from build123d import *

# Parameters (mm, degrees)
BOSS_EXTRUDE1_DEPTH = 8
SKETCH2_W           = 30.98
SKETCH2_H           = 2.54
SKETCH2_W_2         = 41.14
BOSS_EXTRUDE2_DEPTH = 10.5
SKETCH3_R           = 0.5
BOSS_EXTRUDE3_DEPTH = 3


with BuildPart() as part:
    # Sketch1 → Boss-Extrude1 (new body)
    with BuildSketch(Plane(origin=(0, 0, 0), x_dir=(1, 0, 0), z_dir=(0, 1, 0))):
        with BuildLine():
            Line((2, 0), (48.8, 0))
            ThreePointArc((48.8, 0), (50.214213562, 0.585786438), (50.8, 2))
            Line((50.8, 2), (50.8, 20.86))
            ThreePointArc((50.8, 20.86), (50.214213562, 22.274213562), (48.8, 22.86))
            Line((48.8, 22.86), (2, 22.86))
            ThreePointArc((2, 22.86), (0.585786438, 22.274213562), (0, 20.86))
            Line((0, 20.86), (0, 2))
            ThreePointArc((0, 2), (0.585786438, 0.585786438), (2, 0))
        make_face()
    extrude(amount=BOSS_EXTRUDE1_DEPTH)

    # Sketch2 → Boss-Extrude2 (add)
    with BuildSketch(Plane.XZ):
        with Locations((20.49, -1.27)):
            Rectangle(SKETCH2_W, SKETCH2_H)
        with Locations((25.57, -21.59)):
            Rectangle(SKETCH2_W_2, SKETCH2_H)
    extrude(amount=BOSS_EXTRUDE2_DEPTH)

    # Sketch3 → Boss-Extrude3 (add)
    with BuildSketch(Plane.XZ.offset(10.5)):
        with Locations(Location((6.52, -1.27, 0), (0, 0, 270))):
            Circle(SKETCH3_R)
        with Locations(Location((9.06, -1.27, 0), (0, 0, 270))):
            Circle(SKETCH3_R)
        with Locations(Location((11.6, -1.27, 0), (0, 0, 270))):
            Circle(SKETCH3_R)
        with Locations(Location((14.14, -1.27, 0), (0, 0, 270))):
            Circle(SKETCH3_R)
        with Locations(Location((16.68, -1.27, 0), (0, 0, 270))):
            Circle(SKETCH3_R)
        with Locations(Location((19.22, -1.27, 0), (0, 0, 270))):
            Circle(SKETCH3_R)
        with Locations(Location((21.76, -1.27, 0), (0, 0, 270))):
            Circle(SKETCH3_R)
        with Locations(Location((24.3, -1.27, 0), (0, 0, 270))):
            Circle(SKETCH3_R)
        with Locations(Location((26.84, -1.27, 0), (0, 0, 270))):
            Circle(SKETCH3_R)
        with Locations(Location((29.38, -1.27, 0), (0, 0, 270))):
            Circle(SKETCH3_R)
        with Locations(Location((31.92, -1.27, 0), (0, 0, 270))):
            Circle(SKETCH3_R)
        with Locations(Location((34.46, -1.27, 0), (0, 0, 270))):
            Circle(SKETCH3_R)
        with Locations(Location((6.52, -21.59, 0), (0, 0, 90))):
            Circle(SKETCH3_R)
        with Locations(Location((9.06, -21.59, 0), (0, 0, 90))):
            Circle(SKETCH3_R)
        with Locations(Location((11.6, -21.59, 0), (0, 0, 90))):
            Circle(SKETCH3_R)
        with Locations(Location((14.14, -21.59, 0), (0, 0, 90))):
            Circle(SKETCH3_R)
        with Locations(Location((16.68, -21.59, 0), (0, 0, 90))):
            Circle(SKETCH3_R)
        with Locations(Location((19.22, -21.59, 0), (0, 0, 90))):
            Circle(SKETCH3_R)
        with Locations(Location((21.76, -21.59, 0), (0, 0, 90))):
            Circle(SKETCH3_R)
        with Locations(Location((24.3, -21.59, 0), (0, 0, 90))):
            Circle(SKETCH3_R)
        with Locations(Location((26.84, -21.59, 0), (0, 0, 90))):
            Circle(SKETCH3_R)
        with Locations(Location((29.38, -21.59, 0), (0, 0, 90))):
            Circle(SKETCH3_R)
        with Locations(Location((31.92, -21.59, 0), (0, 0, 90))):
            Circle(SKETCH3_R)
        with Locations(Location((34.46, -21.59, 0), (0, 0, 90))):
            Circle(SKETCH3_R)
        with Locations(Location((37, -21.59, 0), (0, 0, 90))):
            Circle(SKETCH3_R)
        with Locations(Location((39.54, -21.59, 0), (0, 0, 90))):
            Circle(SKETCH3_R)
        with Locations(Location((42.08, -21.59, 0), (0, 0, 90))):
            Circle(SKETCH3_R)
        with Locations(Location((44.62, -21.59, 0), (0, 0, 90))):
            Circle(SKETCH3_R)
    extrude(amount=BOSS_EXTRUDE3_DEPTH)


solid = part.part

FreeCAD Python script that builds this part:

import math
import FreeCAD as App
import Part
import Sketcher

V = App.Vector

doc = App.newDocument("Part")
body = doc.addObject("PartDesign::Body", "Body")

sketch1 = body.newObject("Sketcher::SketchObject", "Sketch")
sketch1.AttachmentSupport = (doc.getObject("XZ_Plane"), [""])
sketch1.MapMode = "FlatFace"
sketch1.addGeometry([
    Part.LineSegment(V(2, 0, 0), V(48.8, 0, 0)),
    Part.ArcOfCircle(Part.Circle(V(48.8, -2, 0), V(0, 0, 1), 2), math.radians(0), math.radians(90)),
    Part.LineSegment(V(50.8, -2, 0), V(50.8, -20.9, 0)),
    Part.ArcOfCircle(Part.Circle(V(48.8, -20.9, 0), V(0, 0, 1), 2), math.radians(-90), math.radians(0)),
    Part.LineSegment(V(48.8, -22.9, 0), V(2, -22.9, 0)),
    Part.ArcOfCircle(Part.Circle(V(2, -20.9, 0), V(0, 0, 1), 2), math.radians(-180), math.radians(-90)),
    Part.LineSegment(V(0, -20.9, 0), V(0, -2, 0)),
    Part.ArcOfCircle(Part.Circle(V(2, -2, 0), V(0, 0, 1), 2), math.radians(90), math.radians(180)),
], False)
sketch1.addConstraint([
    Sketcher.Constraint("Tangent", 0, 2, 1, 2),
    Sketcher.Constraint("Tangent", 1, 1, 2, 1),
    Sketcher.Constraint("Tangent", 2, 2, 3, 2),
    Sketcher.Constraint("Tangent", 3, 1, 4, 1),
    Sketcher.Constraint("Tangent", 4, 2, 5, 2),
    Sketcher.Constraint("Tangent", 5, 1, 6, 1),
    Sketcher.Constraint("Tangent", 6, 2, 7, 2),
    Sketcher.Constraint("Tangent", 7, 1, 0, 1),
    Sketcher.Constraint("Horizontal", 0),
    Sketcher.Constraint("Vertical", 2),
    Sketcher.Constraint("Horizontal", 4),
    Sketcher.Constraint("Vertical", 6),
    Sketcher.Constraint("Equal", 1, 3),
    Sketcher.Constraint("Equal", 3, 5),
    Sketcher.Constraint("Equal", 5, 7),
    Sketcher.Constraint("PointOnObject", 0, 2, -1),
    Sketcher.Constraint("PointOnObject", 5, 1, -2),
    Sketcher.Constraint("Radius", 1, 2.0),
    Sketcher.Constraint("DistanceX", 0, 1, 0, 2, 46.8),
    Sketcher.Constraint("DistanceY", 2, 2, 2, 1, 18.86),
])
pad1 = body.newObject("PartDesign::Pad", "Pad")
pad1.Profile = sketch1
pad1.Length = 8
pad1.Reversed = True

sketch2 = body.newObject("Sketcher::SketchObject", "Sketch001")
sketch2.AttachmentSupport = (doc.getObject("XZ_Plane"), [""])
sketch2.MapMode = "FlatFace"
sketch2.addGeometry([
    Part.LineSegment(V(5, 0, 0), V(5, -2.5, 0)),
    Part.LineSegment(V(5, -2.5, 0), V(36, -2.5, 0)),
    Part.LineSegment(V(36, -2.5, 0), V(36, 0, 0)),
    Part.LineSegment(V(36, 0, 0), V(5, 0, 0)),
    Part.LineSegment(V(5, -20.3, 0), V(5, -22.9, 0)),
    Part.LineSegment(V(5, -22.9, 0), V(46.1, -22.9, 0)),
    Part.LineSegment(V(46.1, -22.9, 0), V(46.1, -20.3, 0)),
    Part.LineSegment(V(46.1, -20.3, 0), V(5, -20.3, 0)),
], False)
sketch2.addConstraint([
    Sketcher.Constraint("Coincident", 0, 2, 1, 1),
    Sketcher.Constraint("Coincident", 1, 2, 2, 1),
    Sketcher.Constraint("Coincident", 2, 2, 3, 1),
    Sketcher.Constraint("Coincident", 3, 2, 0, 1),
    Sketcher.Constraint("Coincident", 4, 2, 5, 1),
    Sketcher.Constraint("Coincident", 5, 2, 6, 1),
    Sketcher.Constraint("Coincident", 6, 2, 7, 1),
    Sketcher.Constraint("Coincident", 7, 2, 4, 1),
    Sketcher.Constraint("Vertical", 0),
    Sketcher.Constraint("Horizontal", 1),
    Sketcher.Constraint("Vertical", 2),
    Sketcher.Constraint("Horizontal", 3),
    Sketcher.Constraint("Vertical", 4),
    Sketcher.Constraint("Horizontal", 5),
    Sketcher.Constraint("Vertical", 6),
    Sketcher.Constraint("Horizontal", 7),
    Sketcher.Constraint("PointOnObject", 2, 2, -1),
    Sketcher.Constraint("Vertical", 3, 2, 4, 2),
    Sketcher.Constraint("Equal", 2, 4),
    Sketcher.Constraint("DistanceX", -1, 1, 0, 2, 5.0),
    Sketcher.Constraint("DistanceX", 1, 1, 1, 2, 30.98),
    Sketcher.Constraint("DistanceX", 5, 1, 5, 2, 41.14),
    Sketcher.Constraint("DistanceY", 0, 2, 0, 1, 2.54),
    Sketcher.Constraint("DistanceY", 4, 2, -1, 1, 22.86),
])
pad2 = body.newObject("PartDesign::Pad", "Pad001")
pad2.Profile = sketch2
pad2.Length = 10.5

sketch3 = body.newObject("Sketcher::SketchObject", "Sketch002")
sketch3.AttachmentSupport = (doc.getObject("XZ_Plane"), [""])
sketch3.MapMode = "FlatFace"
sketch3.AttachmentOffset = App.Placement(V(0, 0, 10.5), App.Rotation())
sketch3.addGeometry([
    Part.Circle(V(6.5, -1.3, 0), V(0, 0, 1), 0.5),
    Part.Circle(V(9.1, -1.3, 0), V(0, 0, 1), 0.5),
    Part.Circle(V(11.6, -1.3, 0), V(0, 0, 1), 0.5),
    Part.Circle(V(14.1, -1.3, 0), V(0, 0, 1), 0.5),
    Part.Circle(V(16.7, -1.3, 0), V(0, 0, 1), 0.5),
    Part.Circle(V(19.2, -1.3, 0), V(0, 0, 1), 0.5),
    Part.Circle(V(21.8, -1.3, 0), V(0, 0, 1), 0.5),
    Part.Circle(V(24.3, -1.3, 0), V(0, 0, 1), 0.5),
    Part.Circle(V(26.8, -1.3, 0), V(0, 0, 1), 0.5),
    Part.Circle(V(29.4, -1.3, 0), V(0, 0, 1), 0.5),
    Part.Circle(V(31.9, -1.3, 0), V(0, 0, 1), 0.5),
    Part.Circle(V(34.5, -1.3, 0), V(0, 0, 1), 0.5),
    Part.Circle(V(6.5, -21.6, 0), V(0, 0, 1), 0.5),
    Part.Circle(V(9.1, -21.6, 0), V(0, 0, 1), 0.5),
    Part.Circle(V(11.6, -21.6, 0), V(0, 0, 1), 0.5),
    Part.Circle(V(14.1, -21.6, 0), V(0, 0, 1), 0.5),
    Part.Circle(V(16.7, -21.6, 0), V(0, 0, 1), 0.5),
    Part.Circle(V(19.2, -21.6, 0), V(0, 0, 1), 0.5),
    Part.Circle(V(21.8, -21.6, 0), V(0, 0, 1), 0.5),
    Part.Circle(V(24.3, -21.6, 0), V(0, 0, 1), 0.5),
    Part.Circle(V(26.8, -21.6, 0), V(0, 0, 1), 0.5),
    Part.Circle(V(29.4, -21.6, 0), V(0, 0, 1), 0.5),
    Part.Circle(V(31.9, -21.6, 0), V(0, 0, 1), 0.5),
    Part.Circle(V(34.5, -21.6, 0), V(0, 0, 1), 0.5),
    Part.Circle(V(37, -21.6, 0), V(0, 0, 1), 0.5),
    Part.Circle(V(39.5, -21.6, 0), V(0, 0, 1), 0.5),
    Part.Circle(V(42.1, -21.6, 0), V(0, 0, 1), 0.5),
    Part.Circle(V(44.6, -21.6, 0), V(0, 0, 1), 0.5),
], False)
sketch3.addConstraint([
    Sketcher.Constraint("Equal", 0, 1),
    Sketcher.Constraint("Equal", 1, 2),
    Sketcher.Constraint("Equal", 2, 3),
    Sketcher.Constraint("Equal", 3, 4),
    Sketcher.Constraint("Equal", 4, 5),
    Sketcher.Constraint("Equal", 5, 6),
    Sketcher.Constraint("Equal", 6, 7),
    Sketcher.Constraint("Equal", 7, 8),
    Sketcher.Constraint("Equal", 8, 9),
    Sketcher.Constraint("Equal", 9, 10),
    Sketcher.Constraint("Equal", 10, 11),
    Sketcher.Constraint("Equal", 11, 12),
    Sketcher.Constraint("Equal", 12, 13),
    Sketcher.Constraint("Equal", 13, 14),
    Sketcher.Constraint("Equal", 14, 15),
    Sketcher.Constraint("Equal", 15, 16),
    Sketcher.Constraint("Equal", 16, 17),
    Sketcher.Constraint("Equal", 17, 18),
    Sketcher.Constraint("Equal", 18, 19),
    Sketcher.Constraint("Equal", 19, 20),
    Sketcher.Constraint("Equal", 20, 21),
    Sketcher.Constraint("Equal", 21, 22),
    Sketcher.Constraint("Equal", 22, 23),
    Sketcher.Constraint("Equal", 23, 24),
    Sketcher.Constraint("Equal", 24, 25),
    Sketcher.Constraint("Equal", 25, 26),
    Sketcher.Constraint("Equal", 26, 27),
    Sketcher.Constraint("Horizontal", 0, 3, 1, 3),
    Sketcher.Constraint("Horizontal", 1, 3, 2, 3),
    Sketcher.Constraint("Horizontal", 2, 3, 3, 3),
    Sketcher.Constraint("Horizontal", 3, 3, 4, 3),
    Sketcher.Constraint("Horizontal", 4, 3, 5, 3),
    Sketcher.Constraint("Horizontal", 5, 3, 6, 3),
    Sketcher.Constraint("Horizontal", 6, 3, 7, 3),
    Sketcher.Constraint("Horizontal", 7, 3, 8, 3),
    Sketcher.Constraint("Horizontal", 8, 3, 9, 3),
    Sketcher.Constraint("Horizontal", 9, 3, 10, 3),
    Sketcher.Constraint("Horizontal", 10, 3, 11, 3),
    Sketcher.Constraint("Horizontal", 12, 3, 13, 3),
    Sketcher.Constraint("Horizontal", 13, 3, 14, 3),
    Sketcher.Constraint("Horizontal", 14, 3, 15, 3),
    Sketcher.Constraint("Horizontal", 15, 3, 16, 3),
    Sketcher.Constraint("Horizontal", 16, 3, 17, 3),
    Sketcher.Constraint("Horizontal", 17, 3, 18, 3),
    Sketcher.Constraint("Horizontal", 18, 3, 19, 3),
    Sketcher.Constraint("Horizontal", 19, 3, 20, 3),
    Sketcher.Constraint("Horizontal", 20, 3, 21, 3),
    Sketcher.Constraint("Horizontal", 21, 3, 22, 3),
    Sketcher.Constraint("Horizontal", 22, 3, 23, 3),
    Sketcher.Constraint("Horizontal", 23, 3, 24, 3),
    Sketcher.Constraint("Horizontal", 24, 3, 25, 3),
    Sketcher.Constraint("Horizontal", 25, 3, 26, 3),
    Sketcher.Constraint("Horizontal", 26, 3, 27, 3),
    Sketcher.Constraint("Vertical", 0, 3, 12, 3),
    Sketcher.Constraint("Vertical", 1, 3, 13, 3),
    Sketcher.Constraint("Vertical", 2, 3, 14, 3),
    Sketcher.Constraint("Vertical", 3, 3, 15, 3),
    Sketcher.Constraint("Vertical", 4, 3, 16, 3),
    Sketcher.Constraint("Vertical", 5, 3, 17, 3),
    Sketcher.Constraint("Vertical", 6, 3, 18, 3),
    Sketcher.Constraint("Vertical", 7, 3, 19, 3),
    Sketcher.Constraint("Vertical", 8, 3, 20, 3),
    Sketcher.Constraint("Vertical", 9, 3, 21, 3),
    Sketcher.Constraint("Vertical", 10, 3, 22, 3),
    Sketcher.Constraint("Vertical", 11, 3, 23, 3),
    Sketcher.Constraint("Diameter", 0, 1.0),
    Sketcher.Constraint("DistanceX", -1, 1, 24, 3, 37.0),
    Sketcher.Constraint("DistanceX", -1, 1, 2, 3, 11.6),
    Sketcher.Constraint("DistanceX", -1, 1, 7, 3, 24.3),
    Sketcher.Constraint("DistanceX", 0, 3, 5, 3, 12.7),
    Sketcher.Constraint("DistanceX", 1, 3, 6, 3, 12.7),
    Sketcher.Constraint("DistanceX", 3, 3, 8, 3, 12.7),
    Sketcher.Constraint("DistanceX", 4, 3, 9, 3, 12.7),
    Sketcher.Constraint("DistanceX", 5, 3, 10, 3, 12.7),
    Sketcher.Constraint("DistanceX", 6, 3, 11, 3, 12.7),
    Sketcher.Constraint("DistanceX", 20, 3, 25, 3, 12.7),
    Sketcher.Constraint("DistanceX", 21, 3, 26, 3, 12.7),
    Sketcher.Constraint("DistanceX", 22, 3, 27, 3, 12.7),
    Sketcher.Constraint("DistanceX", -1, 1, 0, 3, 6.52),
    Sketcher.Constraint("DistanceY", 0, 3, -1, 1, 1.27),
    Sketcher.Constraint("DistanceX", -1, 1, 1, 3, 9.06),
    Sketcher.Constraint("DistanceX", -1, 1, 3, 3, 14.14),
    Sketcher.Constraint("DistanceX", -1, 1, 4, 3, 16.68),
    Sketcher.Constraint("DistanceY", 12, 3, -1, 1, 21.59),
])
pad3 = body.newObject("PartDesign::Pad", "Pad002")
pad3.Profile = sketch3
pad3.Length = 3

doc.recompute()
